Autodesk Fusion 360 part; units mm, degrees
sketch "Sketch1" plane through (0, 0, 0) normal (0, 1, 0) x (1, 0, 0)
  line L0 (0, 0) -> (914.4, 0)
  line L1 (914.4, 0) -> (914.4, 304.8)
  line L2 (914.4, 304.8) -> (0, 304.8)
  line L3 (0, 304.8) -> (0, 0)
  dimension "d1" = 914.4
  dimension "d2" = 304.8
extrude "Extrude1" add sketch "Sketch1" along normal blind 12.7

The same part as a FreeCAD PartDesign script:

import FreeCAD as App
import Part
import Sketcher

V = App.Vector
Q = App.Units.Quantity


def add_polygon(sketch, points):
    """Adds a closed chain of lines whose ends are joined by coincident constraints."""
    first, n = sketch.GeometryCount, len(points)
    for a, b in zip(points, points[1:] + points[:1]):
        sketch.addGeometry(Part.LineSegment(App.Vector(*a, 0), App.Vector(*b, 0)), False)
    for i in range(n):
        sketch.addConstraint(Sketcher.Constraint("Coincident", first + i, 2, first + (i + 1) % n, 1))

doc = App.newDocument("Part")
body = doc.addObject("PartDesign::Body", "Body")

# Sketch on XZ plane
sketch1 = doc.addObject("Sketcher::SketchObject", "Sketch")
body.addObject(sketch1)
sketch1.AttachmentSupport = (doc.XZ_Plane, [""])
sketch1.MapMode = "FlatFace"
add_polygon(sketch1, [(0, -304.8), (0, 0), (914.4, 0), (914.4, -304.8)])  # lines 0-3
sketch1.addConstraint(Sketcher.Constraint("Vertical", 0))
sketch1.addConstraint(Sketcher.Constraint("Horizontal", 1))
sketch1.addConstraint(Sketcher.Constraint("Vertical", 2))
sketch1.addConstraint(Sketcher.Constraint("Horizontal", 3))
sketch1.addConstraint(Sketcher.Constraint("Coincident", 0, 2, -1, 1))
sketch1.addConstraint(Sketcher.Constraint("DistanceX", 1, 1, 1, 2, Q("36 in")))
sketch1.addConstraint(Sketcher.Constraint("DistanceY", 0, 1, 0, 2, Q("12 in")))
pad1 = doc.addObject("PartDesign::Pad", "Pad")
body.addObject(pad1)
pad1.Profile = sketch1
pad1.Length = Q("0.5 in")
pad1.Reversed = True

doc.recompute()
